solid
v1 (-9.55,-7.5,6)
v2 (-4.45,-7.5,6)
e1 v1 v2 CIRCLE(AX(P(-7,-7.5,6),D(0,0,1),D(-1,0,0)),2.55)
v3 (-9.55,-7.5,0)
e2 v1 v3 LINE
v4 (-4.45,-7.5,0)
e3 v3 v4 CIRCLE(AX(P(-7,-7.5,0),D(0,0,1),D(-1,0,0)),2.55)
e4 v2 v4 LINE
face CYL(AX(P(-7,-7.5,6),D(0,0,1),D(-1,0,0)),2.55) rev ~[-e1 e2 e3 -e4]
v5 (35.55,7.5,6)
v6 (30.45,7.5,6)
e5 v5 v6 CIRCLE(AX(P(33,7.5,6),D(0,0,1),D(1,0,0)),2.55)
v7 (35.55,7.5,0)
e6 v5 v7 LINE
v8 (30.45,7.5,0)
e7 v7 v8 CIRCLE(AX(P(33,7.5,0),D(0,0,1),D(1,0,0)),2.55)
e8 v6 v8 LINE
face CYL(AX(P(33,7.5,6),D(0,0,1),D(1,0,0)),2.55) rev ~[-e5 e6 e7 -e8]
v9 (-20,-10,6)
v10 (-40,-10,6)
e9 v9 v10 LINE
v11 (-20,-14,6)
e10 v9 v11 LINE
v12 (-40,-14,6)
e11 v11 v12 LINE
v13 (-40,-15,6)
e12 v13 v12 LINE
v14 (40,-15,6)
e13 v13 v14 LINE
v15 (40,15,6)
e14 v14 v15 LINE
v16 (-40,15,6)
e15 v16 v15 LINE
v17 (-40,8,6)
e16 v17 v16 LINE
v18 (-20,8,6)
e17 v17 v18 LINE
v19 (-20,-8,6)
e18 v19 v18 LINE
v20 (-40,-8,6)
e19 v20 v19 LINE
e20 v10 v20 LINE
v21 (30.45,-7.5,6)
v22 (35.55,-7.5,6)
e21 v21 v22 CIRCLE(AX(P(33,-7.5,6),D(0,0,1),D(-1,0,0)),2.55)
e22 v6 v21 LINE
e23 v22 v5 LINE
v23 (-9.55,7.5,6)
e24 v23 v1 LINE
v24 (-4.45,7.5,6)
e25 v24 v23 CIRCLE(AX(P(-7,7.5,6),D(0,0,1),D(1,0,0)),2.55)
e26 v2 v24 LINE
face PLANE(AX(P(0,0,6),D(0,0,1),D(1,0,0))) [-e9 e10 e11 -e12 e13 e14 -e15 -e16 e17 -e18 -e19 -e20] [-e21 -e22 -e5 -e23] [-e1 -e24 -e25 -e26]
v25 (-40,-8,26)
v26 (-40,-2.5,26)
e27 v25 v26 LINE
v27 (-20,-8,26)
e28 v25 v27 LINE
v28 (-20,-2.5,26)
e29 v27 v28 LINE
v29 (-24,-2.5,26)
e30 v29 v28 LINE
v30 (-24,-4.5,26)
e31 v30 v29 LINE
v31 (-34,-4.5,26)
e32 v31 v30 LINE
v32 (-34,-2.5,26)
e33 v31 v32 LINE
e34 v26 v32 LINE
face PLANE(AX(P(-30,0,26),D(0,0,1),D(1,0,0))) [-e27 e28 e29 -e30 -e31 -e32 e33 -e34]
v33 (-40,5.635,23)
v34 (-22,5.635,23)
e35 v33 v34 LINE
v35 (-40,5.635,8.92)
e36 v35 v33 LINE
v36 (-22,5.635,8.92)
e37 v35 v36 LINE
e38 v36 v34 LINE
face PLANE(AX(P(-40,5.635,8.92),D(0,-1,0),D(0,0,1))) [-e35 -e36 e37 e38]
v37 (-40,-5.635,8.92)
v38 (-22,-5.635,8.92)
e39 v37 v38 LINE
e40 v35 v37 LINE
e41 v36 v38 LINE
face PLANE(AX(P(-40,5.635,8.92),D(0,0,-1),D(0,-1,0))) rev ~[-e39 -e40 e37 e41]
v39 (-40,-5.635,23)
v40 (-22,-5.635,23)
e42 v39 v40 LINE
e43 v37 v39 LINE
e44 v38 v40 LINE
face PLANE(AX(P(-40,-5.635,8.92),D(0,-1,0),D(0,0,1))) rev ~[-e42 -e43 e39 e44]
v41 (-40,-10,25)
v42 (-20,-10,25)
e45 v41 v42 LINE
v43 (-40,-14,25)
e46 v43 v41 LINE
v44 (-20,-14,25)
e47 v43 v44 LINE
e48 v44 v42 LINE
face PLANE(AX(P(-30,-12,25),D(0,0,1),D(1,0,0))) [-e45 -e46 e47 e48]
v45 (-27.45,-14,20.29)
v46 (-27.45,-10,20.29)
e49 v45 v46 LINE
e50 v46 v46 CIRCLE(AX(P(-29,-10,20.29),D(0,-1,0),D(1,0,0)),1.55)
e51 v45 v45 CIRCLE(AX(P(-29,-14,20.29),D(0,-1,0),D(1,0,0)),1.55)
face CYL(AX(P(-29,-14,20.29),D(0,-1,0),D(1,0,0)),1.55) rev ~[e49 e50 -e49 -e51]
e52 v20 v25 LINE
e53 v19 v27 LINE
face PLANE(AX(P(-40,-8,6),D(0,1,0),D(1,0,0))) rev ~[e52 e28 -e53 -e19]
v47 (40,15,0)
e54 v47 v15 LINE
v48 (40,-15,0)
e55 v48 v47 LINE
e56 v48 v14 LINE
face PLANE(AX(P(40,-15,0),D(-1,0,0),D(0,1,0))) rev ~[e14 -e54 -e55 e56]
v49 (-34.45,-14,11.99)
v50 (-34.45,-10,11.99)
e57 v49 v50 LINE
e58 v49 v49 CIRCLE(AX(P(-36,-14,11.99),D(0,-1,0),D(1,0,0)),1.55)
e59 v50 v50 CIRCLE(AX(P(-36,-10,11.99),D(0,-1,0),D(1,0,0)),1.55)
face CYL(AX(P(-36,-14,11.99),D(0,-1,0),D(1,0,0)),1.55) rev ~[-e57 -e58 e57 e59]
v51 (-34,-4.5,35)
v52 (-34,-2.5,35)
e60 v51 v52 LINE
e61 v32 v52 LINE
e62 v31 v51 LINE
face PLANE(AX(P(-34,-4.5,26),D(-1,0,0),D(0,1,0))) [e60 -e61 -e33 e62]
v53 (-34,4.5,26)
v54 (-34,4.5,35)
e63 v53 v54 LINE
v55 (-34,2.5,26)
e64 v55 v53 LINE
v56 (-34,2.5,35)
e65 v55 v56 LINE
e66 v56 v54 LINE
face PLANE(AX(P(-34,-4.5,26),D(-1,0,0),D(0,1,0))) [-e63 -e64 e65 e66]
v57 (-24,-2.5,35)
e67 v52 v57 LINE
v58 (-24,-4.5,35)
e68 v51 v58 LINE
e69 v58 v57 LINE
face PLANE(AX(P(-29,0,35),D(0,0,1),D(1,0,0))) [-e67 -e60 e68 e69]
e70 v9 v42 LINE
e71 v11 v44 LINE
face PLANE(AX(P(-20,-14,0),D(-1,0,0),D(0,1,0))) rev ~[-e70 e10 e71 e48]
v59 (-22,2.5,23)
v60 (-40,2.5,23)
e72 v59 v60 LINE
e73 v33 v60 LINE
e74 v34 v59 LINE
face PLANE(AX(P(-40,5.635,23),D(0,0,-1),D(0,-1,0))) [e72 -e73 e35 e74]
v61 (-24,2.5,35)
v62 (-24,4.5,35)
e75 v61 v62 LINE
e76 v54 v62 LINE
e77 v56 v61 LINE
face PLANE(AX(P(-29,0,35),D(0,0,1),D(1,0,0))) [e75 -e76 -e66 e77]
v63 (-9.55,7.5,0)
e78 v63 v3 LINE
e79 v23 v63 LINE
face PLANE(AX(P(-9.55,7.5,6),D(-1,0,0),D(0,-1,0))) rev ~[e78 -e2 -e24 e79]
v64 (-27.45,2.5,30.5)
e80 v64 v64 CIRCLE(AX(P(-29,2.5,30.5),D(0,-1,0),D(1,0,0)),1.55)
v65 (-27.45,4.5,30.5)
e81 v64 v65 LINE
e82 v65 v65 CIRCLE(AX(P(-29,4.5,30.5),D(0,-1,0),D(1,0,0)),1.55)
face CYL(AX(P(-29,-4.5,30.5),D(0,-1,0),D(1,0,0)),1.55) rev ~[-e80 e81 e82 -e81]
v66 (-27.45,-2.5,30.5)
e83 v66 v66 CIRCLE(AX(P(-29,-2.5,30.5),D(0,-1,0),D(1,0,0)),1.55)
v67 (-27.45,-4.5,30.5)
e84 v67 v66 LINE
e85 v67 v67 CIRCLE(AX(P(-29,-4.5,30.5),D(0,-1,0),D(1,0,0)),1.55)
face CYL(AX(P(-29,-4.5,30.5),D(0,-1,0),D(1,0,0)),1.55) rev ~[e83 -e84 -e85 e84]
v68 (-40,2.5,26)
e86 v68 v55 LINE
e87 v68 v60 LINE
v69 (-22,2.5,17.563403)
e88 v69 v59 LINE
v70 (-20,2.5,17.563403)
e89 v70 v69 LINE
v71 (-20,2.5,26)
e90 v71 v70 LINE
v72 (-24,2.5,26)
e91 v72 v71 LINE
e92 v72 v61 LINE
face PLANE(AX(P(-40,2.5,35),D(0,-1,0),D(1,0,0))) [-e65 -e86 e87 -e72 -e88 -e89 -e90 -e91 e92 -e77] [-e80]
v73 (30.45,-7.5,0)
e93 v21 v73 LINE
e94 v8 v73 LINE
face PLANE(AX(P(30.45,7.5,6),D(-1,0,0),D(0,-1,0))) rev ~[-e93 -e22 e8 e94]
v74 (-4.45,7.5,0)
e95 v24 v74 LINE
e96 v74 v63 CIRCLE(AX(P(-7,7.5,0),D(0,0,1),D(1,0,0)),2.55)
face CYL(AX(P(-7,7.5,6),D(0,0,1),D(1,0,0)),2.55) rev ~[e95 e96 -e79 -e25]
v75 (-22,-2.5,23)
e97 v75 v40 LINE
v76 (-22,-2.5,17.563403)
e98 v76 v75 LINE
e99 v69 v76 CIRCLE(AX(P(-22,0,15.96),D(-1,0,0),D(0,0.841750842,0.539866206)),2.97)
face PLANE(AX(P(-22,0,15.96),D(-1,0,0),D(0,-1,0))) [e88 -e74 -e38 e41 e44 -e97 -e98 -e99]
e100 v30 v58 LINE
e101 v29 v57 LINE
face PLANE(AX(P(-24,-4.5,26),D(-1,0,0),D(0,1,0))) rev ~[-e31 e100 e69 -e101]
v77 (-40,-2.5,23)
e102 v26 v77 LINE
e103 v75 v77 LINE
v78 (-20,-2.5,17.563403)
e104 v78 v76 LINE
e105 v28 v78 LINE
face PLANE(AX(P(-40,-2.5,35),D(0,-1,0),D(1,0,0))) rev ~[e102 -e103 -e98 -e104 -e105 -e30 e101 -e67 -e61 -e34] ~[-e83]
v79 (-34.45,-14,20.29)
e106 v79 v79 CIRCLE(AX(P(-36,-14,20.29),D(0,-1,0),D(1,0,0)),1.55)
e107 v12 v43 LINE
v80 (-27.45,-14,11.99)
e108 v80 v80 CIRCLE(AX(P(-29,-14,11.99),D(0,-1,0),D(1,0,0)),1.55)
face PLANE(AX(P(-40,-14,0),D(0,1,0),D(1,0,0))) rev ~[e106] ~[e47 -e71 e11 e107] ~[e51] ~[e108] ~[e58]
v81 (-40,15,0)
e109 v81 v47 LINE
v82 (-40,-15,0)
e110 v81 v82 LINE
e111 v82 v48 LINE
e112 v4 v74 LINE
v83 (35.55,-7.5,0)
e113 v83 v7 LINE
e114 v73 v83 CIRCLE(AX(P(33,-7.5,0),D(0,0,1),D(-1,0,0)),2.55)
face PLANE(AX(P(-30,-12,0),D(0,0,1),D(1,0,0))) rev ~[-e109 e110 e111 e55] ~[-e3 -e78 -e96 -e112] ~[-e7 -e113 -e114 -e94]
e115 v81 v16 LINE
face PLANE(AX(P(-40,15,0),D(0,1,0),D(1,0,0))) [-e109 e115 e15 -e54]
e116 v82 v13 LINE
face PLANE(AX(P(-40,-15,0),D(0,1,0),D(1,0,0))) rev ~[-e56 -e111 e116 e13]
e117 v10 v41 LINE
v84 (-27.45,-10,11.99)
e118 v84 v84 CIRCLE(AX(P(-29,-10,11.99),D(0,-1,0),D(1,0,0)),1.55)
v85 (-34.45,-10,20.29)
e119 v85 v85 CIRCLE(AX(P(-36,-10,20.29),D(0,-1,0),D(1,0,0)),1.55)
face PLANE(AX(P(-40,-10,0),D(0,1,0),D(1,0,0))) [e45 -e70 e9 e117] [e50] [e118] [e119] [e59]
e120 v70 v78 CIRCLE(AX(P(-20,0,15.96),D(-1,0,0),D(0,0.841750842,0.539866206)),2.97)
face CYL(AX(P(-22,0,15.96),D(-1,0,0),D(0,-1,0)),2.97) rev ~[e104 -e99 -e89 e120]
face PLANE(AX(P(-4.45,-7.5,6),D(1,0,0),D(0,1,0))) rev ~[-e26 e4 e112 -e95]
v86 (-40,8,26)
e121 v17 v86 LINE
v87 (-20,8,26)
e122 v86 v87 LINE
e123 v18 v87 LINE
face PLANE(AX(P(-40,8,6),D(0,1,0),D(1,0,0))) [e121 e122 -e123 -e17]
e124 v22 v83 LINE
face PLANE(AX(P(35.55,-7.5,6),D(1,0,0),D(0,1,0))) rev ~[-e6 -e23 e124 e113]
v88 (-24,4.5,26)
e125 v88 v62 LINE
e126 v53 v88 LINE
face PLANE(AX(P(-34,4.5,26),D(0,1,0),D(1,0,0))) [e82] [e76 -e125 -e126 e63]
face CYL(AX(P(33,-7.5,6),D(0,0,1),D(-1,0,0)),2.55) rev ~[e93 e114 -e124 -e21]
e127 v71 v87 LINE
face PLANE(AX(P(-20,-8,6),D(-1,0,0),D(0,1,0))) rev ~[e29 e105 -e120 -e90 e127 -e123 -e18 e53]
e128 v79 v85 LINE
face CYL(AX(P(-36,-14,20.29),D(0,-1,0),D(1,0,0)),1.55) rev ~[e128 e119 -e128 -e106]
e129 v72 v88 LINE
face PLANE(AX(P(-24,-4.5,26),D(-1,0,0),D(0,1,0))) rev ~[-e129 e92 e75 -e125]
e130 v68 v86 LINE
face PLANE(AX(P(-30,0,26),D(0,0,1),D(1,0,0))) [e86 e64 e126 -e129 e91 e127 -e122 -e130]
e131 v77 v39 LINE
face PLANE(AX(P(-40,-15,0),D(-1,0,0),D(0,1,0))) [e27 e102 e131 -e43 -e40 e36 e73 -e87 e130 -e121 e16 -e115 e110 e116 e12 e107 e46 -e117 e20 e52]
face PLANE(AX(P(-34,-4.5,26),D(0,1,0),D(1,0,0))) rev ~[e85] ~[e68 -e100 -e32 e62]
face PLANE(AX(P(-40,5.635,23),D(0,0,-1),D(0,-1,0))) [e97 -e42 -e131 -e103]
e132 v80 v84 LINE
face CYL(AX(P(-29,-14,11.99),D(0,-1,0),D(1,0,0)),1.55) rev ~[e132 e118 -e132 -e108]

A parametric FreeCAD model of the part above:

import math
import FreeCAD as App
import Part
import Sketcher
Q = App.Units.Quantity


def add_polygon(sketch, points):
    """Adds a closed chain of lines whose ends are joined by coincident constraints."""
    first, n = sketch.GeometryCount, len(points)
    for a, b in zip(points, points[1:] + points[:1]):
        sketch.addGeometry(Part.LineSegment(App.Vector(*a, 0), App.Vector(*b, 0)), False)
    for i in range(n):
        sketch.addConstraint(Sketcher.Constraint("Coincident", first + i, 2, first + (i + 1) % n, 1))

doc = App.newDocument("Part")
body = doc.addObject("PartDesign::Body", "Body")

# Sketch on XY plane
sketch1 = body.newObject("Sketcher::SketchObject", "Sketch")
sketch1.AttachmentSupport = (doc.getObject("XY_Plane"), [""])
sketch1.MapMode = "FlatFace"
add_polygon(sketch1, [(-40, 15), (-40, -15), (40, -15), (40, 15)])  # lines 0-3
sketch1.addConstraint(Sketcher.Constraint("Vertical", 0))
sketch1.addConstraint(Sketcher.Constraint("Horizontal", 1))
sketch1.addConstraint(Sketcher.Constraint("Vertical", 2))
sketch1.addConstraint(Sketcher.Constraint("Horizontal", 3))
sketch1.addConstraint(Sketcher.Constraint("Symmetric", 0, 2, 2, 2, -1, 1))
sketch1.addConstraint(Sketcher.Constraint("DistanceX", 1, 1, 1, 2, Q("80 mm")))
sketch1.addConstraint(Sketcher.Constraint("DistanceY", 0, 2, 0, 1, Q("30 mm")))
pad1 = body.newObject("PartDesign::Pad", "Pad")
pad1.Profile = sketch1
pad1.Length = 6

# Sketch on XY plane
sketch2 = body.newObject("Sketcher::SketchObject", "Sketch001")
sketch2.AttachmentSupport = (doc.getObject("XY_Plane"), [""])
sketch2.MapMode = "FlatFace"
sketch2.AttachmentOffset = App.Placement(App.Vector(0, 0, 6), App.Rotation())
sketch2.addGeometry(Part.LineSegment(App.Vector(35.5, -7.5, 0), App.Vector(35.5, 7.5, 0)), False)
sketch2.addGeometry(Part.ArcOfCircle(Part.Circle(App.Vector(33, 7.5, 0), App.Vector(0, 0, 1), 2.5), math.radians(0), math.radians(180)), False)
sketch2.addGeometry(Part.LineSegment(App.Vector(30.4, 7.5, 0), App.Vector(30.4, -7.5, 0)), False)
sketch2.addGeometry(Part.ArcOfCircle(Part.Circle(App.Vector(33, -7.5, 0), App.Vector(0, 0, 1), 2.5), math.radians(180), math.radians(360)), False)
sketch2.addGeometry(Part.LineSegment(App.Vector(-4.5, -7.5, 0), App.Vector(-4.5, 7.5, 0)), False)
sketch2.addGeometry(Part.ArcOfCircle(Part.Circle(App.Vector(-7, 7.5, 0), App.Vector(0, 0, 1), 2.5), math.radians(0), math.radians(180)), False)
sketch2.addGeometry(Part.LineSegment(App.Vector(-9.6, 7.5, 0), App.Vector(-9.6, -7.5, 0)), False)
sketch2.addGeometry(Part.ArcOfCircle(Part.Circle(App.Vector(-7, -7.5, 0), App.Vector(0, 0, 1), 2.5), math.radians(180), math.radians(360)), False)
sketch2.addConstraint(Sketcher.Constraint("Tangent", 0, 2, 1, 1))
sketch2.addConstraint(Sketcher.Constraint("Tangent", 1, 2, 2, 1))
sketch2.addConstraint(Sketcher.Constraint("Tangent", 2, 2, 3, 1))
sketch2.addConstraint(Sketcher.Constraint("Tangent", 3, 2, 0, 1))
sketch2.addConstraint(Sketcher.Constraint("Tangent", 4, 2, 5, 1))
sketch2.addConstraint(Sketcher.Constraint("Tangent", 5, 2, 6, 1))
sketch2.addConstraint(Sketcher.Constraint("Tangent", 6, 2, 7, 1))
sketch2.addConstraint(Sketcher.Constraint("Tangent", 7, 2, 4, 1))
sketch2.addConstraint(Sketcher.Constraint("Vertical", 0))
sketch2.addConstraint(Sketcher.Constraint("Vertical", 2))
sketch2.addConstraint(Sketcher.Constraint("Vertical", 4))
sketch2.addConstraint(Sketcher.Constraint("Vertical", 6))
sketch2.addConstraint(Sketcher.Constraint("Equal", 3, 5))
sketch2.addConstraint(Sketcher.Constraint("Horizontal", 1, 3, 5, 3))
sketch2.addConstraint(Sketcher.Constraint("Horizontal", 3, 3, 7, 3))
sketch2.addConstraint(Sketcher.Constraint("DistanceY", 0, 1, 0, 2, Q("15 mm")))
sketch2.addConstraint(Sketcher.Constraint("Radius", 1, Q("2.55 mm")))
sketch2.addConstraint(Sketcher.Constraint("DistanceX", -1, 1, 1, 3, Q("33 mm")))
sketch2.addConstraint(Sketcher.Constraint("DistanceX", 5, 3, -1, 1, Q("7 mm")))
sketch2.addConstraint(Sketcher.Constraint("DistanceY", -1, 1, 1, 3, Q("7.5 mm")))
pocket1 = body.newObject("PartDesign::Pocket", "Pocket")
pocket1.Profile = sketch2
pocket1.Type = "ThroughAll"

# Sketch on XY plane
sketch3 = body.newObject("Sketcher::SketchObject", "Sketch002")
sketch3.AttachmentSupport = (doc.getObject("XY_Plane"), [""])
sketch3.MapMode = "FlatFace"
sketch3.AttachmentOffset = App.Placement(App.Vector(0, 0, 6), App.Rotation())
add_polygon(sketch3, [(-40, 8), (-40, -8), (-20, -8), (-20, 8)])  # lines 0-3
sketch3.addConstraint(Sketcher.Constraint("Vertical", 0))
sketch3.addConstraint(Sketcher.Constraint("Horizontal", 1))
sketch3.addConstraint(Sketcher.Constraint("Vertical", 2))
sketch3.addConstraint(Sketcher.Constraint("Horizontal", 3))
sketch3.addConstraint(Sketcher.Constraint("DistanceX", 1, 1, 1, 2, Q("20 mm")))
sketch3.addConstraint(Sketcher.Constraint("DistanceY", 0, 2, 0, 1, Q("16 mm")))
sketch3.addConstraint(Sketcher.Constraint("DistanceX", 0, 2, -1, 1, Q("40 mm")))
sketch3.addConstraint(Sketcher.Constraint("DistanceY", 0, 2, -1, 1, Q("8 mm")))
pad2 = body.newObject("PartDesign::Pad", "Pad001")
pad2.Profile = sketch3
pad2.Length = 20

# Sketch on YZ plane
sketch4 = body.newObject("Sketcher::SketchObject", "Sketch003")
sketch4.AttachmentSupport = (doc.getObject("YZ_Plane"), [""])
sketch4.MapMode = "FlatFace"
sketch4.AttachmentOffset = App.Placement(App.Vector(0, 0, -40), App.Rotation())
add_polygon(sketch4, [(6, 23), (6, 9), (-6, 9), (-6, 23)])  # lines 0-3
sketch4.addConstraint(Sketcher.Constraint("Vertical", 0))
sketch4.addConstraint(Sketcher.Constraint("Horizontal", 1))
sketch4.addConstraint(Sketcher.Constraint("Vertical", 2))
sketch4.addConstraint(Sketcher.Constraint("Horizontal", 3))
sketch4.addConstraint(Sketcher.Constraint("DistanceY", -1, 1, 2, 2, Q("23 mm")))
sketch4.addConstraint(Sketcher.Constraint("DistanceX", 1, 2, 1, 1, Q("11.27 mm")))
sketch4.addConstraint(Sketcher.Constraint("DistanceY", 0, 2, 0, 1, Q("14.08 mm")))
sketch4.addConstraint(Sketcher.Constraint("DistanceX", -1, 1, 0, 2, Q("5.635 mm")))
pocket2 = body.newObject("PartDesign::Pocket", "Pocket001")
pocket2.Profile = sketch4
pocket2.Length = 18
pocket2.Reversed = True

# Sketch on YZ plane
sketch5 = body.newObject("Sketcher::SketchObject", "Sketch004")
sketch5.AttachmentSupport = (doc.getObject("YZ_Plane"), [""])
sketch5.MapMode = "FlatFace"
sketch5.AttachmentOffset = App.Placement(App.Vector(0, 0, -22), App.Rotation())
sketch5.addGeometry(Part.Circle(App.Vector(0, 16, 0), App.Vector(0, 0, 1), 3), False)
sketch5.addConstraint(Sketcher.Constraint("PointOnObject", 0, 3, -2))
sketch5.addConstraint(Sketcher.Constraint("Diameter", 0, Q("5.94 mm")))
sketch5.addConstraint(Sketcher.Constraint("DistanceY", -1, 1, 0, 3, Q("15.96 mm")))
pocket3 = body.newObject("PartDesign::Pocket", "Pocket002")
pocket3.Profile = sketch5
pocket3.Type = "ThroughAll"
pocket3.Reversed = True

# Sketch on XY plane
sketch6 = body.newObject("Sketcher::SketchObject", "Sketch005")
sketch6.AttachmentSupport = (doc.getObject("XY_Plane"), [""])
sketch6.MapMode = "FlatFace"
sketch6.AttachmentOffset = App.Placement(App.Vector(0, 0, 26), App.Rotation())
add_polygon(sketch6, [(-34, 4), (-34, -4), (-24, -4), (-24, 4)])  # lines 0-3
sketch6.addConstraint(Sketcher.Constraint("Vertical", 0))
sketch6.addConstraint(Sketcher.Constraint("Horizontal", 1))
sketch6.addConstraint(Sketcher.Constraint("Vertical", 2))
sketch6.addConstraint(Sketcher.Constraint("Horizontal", 3))
sketch6.addConstraint(Sketcher.Constraint("DistanceX", 1, 1, 1, 2, Q("10 mm")))
sketch6.addConstraint(Sketcher.Constraint("DistanceY", 0, 2, 0, 1, Q("9 mm")))
sketch6.addConstraint(Sketcher.Constraint("DistanceX", 0, 2, -1, 1, Q("34 mm")))
sketch6.addConstraint(Sketcher.Constraint("DistanceY", 0, 2, -1, 1, Q("4.5 mm")))
pad3 = body.newObject("PartDesign::Pad", "Pad002")
pad3.Profile = sketch6
pad3.Length = 9

# Sketch on XZ plane
sketch7 = body.newObject("Sketcher::SketchObject", "Sketch006")
sketch7.AttachmentSupport = (doc.getObject("XZ_Plane"), [""])
sketch7.MapMode = "FlatFace"
sketch7.AttachmentOffset = App.Placement(App.Vector(0, 0, 4.5), App.Rotation())
sketch7.addGeometry(Part.Circle(App.Vector(-29, 30.5, 0), App.Vector(0, 0, 1), 1.6), False)
sketch7.addConstraint(Sketcher.Constraint("Diameter", 0, Q("3.1 mm")))
sketch7.addConstraint(Sketcher.Constraint("DistanceX", 0, 3, -1, 1, Q("29 mm")))
sketch7.addConstraint(Sketcher.Constraint("DistanceY", -1, 1, 0, 3, Q("30.5 mm")))
pocket4 = body.newObject("PartDesign::Pocket", "Pocket003")
pocket4.Profile = sketch7
pocket4.Type = "ThroughAll"

# Sketch on XY plane
sketch8 = body.newObject("Sketcher::SketchObject", "Sketch007")
sketch8.AttachmentSupport = (doc.getObject("XY_Plane"), [""])
sketch8.MapMode = "FlatFace"
sketch8.AttachmentOffset = App.Placement(App.Vector(0, 0, 35), App.Rotation())
add_polygon(sketch8, [(-40, 2), (-40, -2), (-20, -2), (-20, 2)])  # lines 0-3
sketch8.addConstraint(Sketcher.Constraint("Vertical", 0))
sketch8.addConstraint(Sketcher.Constraint("Horizontal", 1))
sketch8.addConstraint(Sketcher.Constraint("Vertical", 2))
sketch8.addConstraint(Sketcher.Constraint("Horizontal", 3))
sketch8.addConstraint(Sketcher.Constraint("DistanceX", 1, 1, 1, 2, Q("20 mm")))
sketch8.addConstraint(Sketcher.Constraint("DistanceY", 0, 2, 0, 1, Q("5 mm")))
sketch8.addConstraint(Sketcher.Constraint("DistanceX", 0, 2, -1, 1, Q("40 mm")))
sketch8.addConstraint(Sketcher.Constraint("DistanceY", 0, 2, -1, 1, Q("2.5 mm")))
pocket5 = body.newObject("PartDesign::Pocket", "Pocket004")
pocket5.Profile = sketch8
pocket5.Length = 19

# Sketch on XY plane
sketch9 = body.newObject("Sketcher::SketchObject", "Sketch008")
sketch9.AttachmentSupport = (doc.getObject("XY_Plane"), [""])
sketch9.MapMode = "FlatFace"
add_polygon(sketch9, [(-40, -10), (-40, -14), (-20, -14), (-20, -10)])  # lines 0-3
sketch9.addConstraint(Sketcher.Constraint("Vertical", 0))
sketch9.addConstraint(Sketcher.Constraint("Horizontal", 1))
sketch9.addConstraint(Sketcher.Constraint("Vertical", 2))
sketch9.addConstraint(Sketcher.Constraint("Horizontal", 3))
sketch9.addConstraint(Sketcher.Constraint("DistanceX", 1, 1, 1, 2, Q("20 mm")))
sketch9.addConstraint(Sketcher.Constraint("DistanceY", 0, 2, 0, 1, Q("4 mm")))
sketch9.addConstraint(Sketcher.Constraint("DistanceX", 0, 2, -1, 1, Q("40 mm")))
sketch9.addConstraint(Sketcher.Constraint("DistanceY", 0, 2, -1, 1, Q("14 mm")))
pad4 = body.newObject("PartDesign::Pad", "Pad003")
pad4.Profile = sketch9
pad4.Length = 25

# Sketch on XZ plane
sketch10 = body.newObject("Sketcher::SketchObject", "Sketch009")
sketch10.AttachmentSupport = (doc.getObject("XZ_Plane"), [""])
sketch10.MapMode = "FlatFace"
sketch10.AttachmentOffset = App.Placement(App.Vector(0, 0, 14), App.Rotation())
sketch10.addGeometry(Part.Circle(App.Vector(-36, 20.3, 0), App.Vector(0, 0, 1), 1.6), False)
sketch10.addGeometry(Part.Circle(App.Vector(-36, 12, 0), App.Vector(0, 0, 1), 1.6), False)
sketch10.addGeometry(Part.Circle(App.Vector(-29, 20.3, 0), App.Vector(0, 0, 1), 1.6), False)
sketch10.addGeometry(Part.Circle(App.Vector(-29, 12, 0), App.Vector(0, 0, 1), 1.6), False)
sketch10.addConstraint(Sketcher.Constraint("Equal", 0, 1))
sketch10.addConstraint(Sketcher.Constraint("Equal", 1, 2))
sketch10.addConstraint(Sketcher.Constraint("Equal", 2, 3))
sketch10.addConstraint(Sketcher.Constraint("Horizontal", 0, 3, 2, 3))
sketch10.addConstraint(Sketcher.Constraint("Horizontal", 1, 3, 3, 3))
sketch10.addConstraint(Sketcher.Constraint("Vertical", 0, 3, 1, 3))
sketch10.addConstraint(Sketcher.Constraint("Vertical", 2, 3, 3, 3))
sketch10.addConstraint(Sketcher.Constraint("Diameter", 0, Q("3.1 mm")))
sketch10.addConstraint(Sketcher.Constraint("DistanceX", 0, 3, -1, 1, Q("36 mm")))
sketch10.addConstraint(Sketcher.Constraint("DistanceX", 2, 3, -1, 1, Q("29 mm")))
sketch10.addConstraint(Sketcher.Constraint("DistanceY", 1, 3, 0, 3, Q("8.3 mm")))
sketch10.addConstraint(Sketcher.Constraint("DistanceY", -1, 1, 0, 3, Q("20.29 mm")))
pocket6 = body.newObject("PartDesign::Pocket", "Pocket005")
pocket6.Profile = sketch10
pocket6.Length = 4

doc.recompute()
